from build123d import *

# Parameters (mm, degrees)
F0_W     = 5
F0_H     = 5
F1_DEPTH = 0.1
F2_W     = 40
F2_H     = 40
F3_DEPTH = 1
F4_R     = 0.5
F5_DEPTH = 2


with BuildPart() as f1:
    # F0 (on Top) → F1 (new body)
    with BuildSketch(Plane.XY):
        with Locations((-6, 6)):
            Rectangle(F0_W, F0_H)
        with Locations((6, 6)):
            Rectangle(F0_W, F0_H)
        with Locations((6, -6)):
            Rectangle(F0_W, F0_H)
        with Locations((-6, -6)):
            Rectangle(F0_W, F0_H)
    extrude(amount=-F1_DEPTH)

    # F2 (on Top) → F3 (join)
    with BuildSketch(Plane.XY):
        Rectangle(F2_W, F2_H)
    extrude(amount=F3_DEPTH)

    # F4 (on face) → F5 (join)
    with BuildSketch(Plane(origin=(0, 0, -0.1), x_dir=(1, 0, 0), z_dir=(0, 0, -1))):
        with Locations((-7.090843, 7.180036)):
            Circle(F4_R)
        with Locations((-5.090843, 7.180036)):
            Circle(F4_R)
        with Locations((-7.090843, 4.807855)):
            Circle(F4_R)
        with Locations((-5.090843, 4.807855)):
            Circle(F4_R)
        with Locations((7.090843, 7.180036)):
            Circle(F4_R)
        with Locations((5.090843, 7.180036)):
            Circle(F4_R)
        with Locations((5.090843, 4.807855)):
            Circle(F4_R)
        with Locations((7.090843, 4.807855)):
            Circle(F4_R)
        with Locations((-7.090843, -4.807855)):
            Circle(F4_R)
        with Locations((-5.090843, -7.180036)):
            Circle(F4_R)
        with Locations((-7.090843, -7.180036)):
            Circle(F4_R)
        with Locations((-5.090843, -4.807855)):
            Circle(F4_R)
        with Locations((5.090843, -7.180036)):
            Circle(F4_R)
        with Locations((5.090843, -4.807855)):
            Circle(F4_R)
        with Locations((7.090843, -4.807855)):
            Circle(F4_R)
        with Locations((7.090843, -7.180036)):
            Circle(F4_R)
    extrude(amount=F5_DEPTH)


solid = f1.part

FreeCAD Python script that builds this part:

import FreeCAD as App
import Part
import Sketcher

V = App.Vector
Q = App.Units.Quantity

doc = App.newDocument("Part")
body = doc.addObject("PartDesign::Body", "Body")
body.AllowCompound = True

sketch1 = body.newObject("Sketcher::SketchObject", "Sketch")
sketch1.AttachmentSupport = (doc.getObject("XY_Plane"), [""])
sketch1.MapMode = "FlatFace"
sketch1.addGeometry(Part.LineSegment(V(-8, 8, 0), V(-8, 4, 0)), False)
sketch1.addGeometry(Part.LineSegment(V(-8, 4, 0), V(-4, 4, 0)), False)
sketch1.addGeometry(Part.LineSegment(V(-4, 4, 0), V(-4, 8, 0)), False)
sketch1.addGeometry(Part.LineSegment(V(-4, 8, 0), V(-8, 8, 0)), False)
sketch1.addGeometry(Part.LineSegment(V(4, 8, 0), V(4, 4, 0)), False)
sketch1.addGeometry(Part.LineSegment(V(4, 4, 0), V(8, 4, 0)), False)
sketch1.addGeometry(Part.LineSegment(V(8, 4, 0), V(8, 8, 0)), False)
sketch1.addGeometry(Part.LineSegment(V(8, 8, 0), V(4, 8, 0)), False)
sketch1.addGeometry(Part.LineSegment(V(4, -4, 0), V(4, -8, 0)), False)
sketch1.addGeometry(Part.LineSegment(V(4, -8, 0), V(8, -8, 0)), False)
sketch1.addGeometry(Part.LineSegment(V(8, -8, 0), V(8, -4, 0)), False)
sketch1.addGeometry(Part.LineSegment(V(8, -4, 0), V(4, -4, 0)), False)
sketch1.addGeometry(Part.LineSegment(V(-8, -4, 0), V(-8, -8, 0)), False)
sketch1.addGeometry(Part.LineSegment(V(-8, -8, 0), V(-4, -8, 0)), False)
sketch1.addGeometry(Part.LineSegment(V(-4, -8, 0), V(-4, -4, 0)), False)
sketch1.addGeometry(Part.LineSegment(V(-4, -4, 0), V(-8, -4, 0)), False)
sketch1.addConstraint(Sketcher.Constraint("Coincident", 0, 2, 1, 1))
sketch1.addConstraint(Sketcher.Constraint("Coincident", 1, 2, 2, 1))
sketch1.addConstraint(Sketcher.Constraint("Coincident", 2, 2, 3, 1))
sketch1.addConstraint(Sketcher.Constraint("Coincident", 3, 2, 0, 1))
sketch1.addConstraint(Sketcher.Constraint("Coincident", 4, 2, 5, 1))
sketch1.addConstraint(Sketcher.Constraint("Coincident", 5, 2, 6, 1))
sketch1.addConstraint(Sketcher.Constraint("Coincident", 6, 2, 7, 1))
sketch1.addConstraint(Sketcher.Constraint("Coincident", 7, 2, 4, 1))
sketch1.addConstraint(Sketcher.Constraint("Coincident", 8, 2, 9, 1))
sketch1.addConstraint(Sketcher.Constraint("Coincident", 9, 2, 10, 1))
sketch1.addConstraint(Sketcher.Constraint("Coincident", 10, 2, 11, 1))
sketch1.addConstraint(Sketcher.Constraint("Coincident", 11, 2, 8, 1))
sketch1.addConstraint(Sketcher.Constraint("Coincident", 12, 2, 13, 1))
sketch1.addConstraint(Sketcher.Constraint("Coincident", 13, 2, 14, 1))
sketch1.addConstraint(Sketcher.Constraint("Coincident", 14, 2, 15, 1))
sketch1.addConstraint(Sketcher.Constraint("Coincident", 15, 2, 12, 1))
sketch1.addConstraint(Sketcher.Constraint("Vertical", 0))
sketch1.addConstraint(Sketcher.Constraint("Horizontal", 1))
sketch1.addConstraint(Sketcher.Constraint("Vertical", 2))
sketch1.addConstraint(Sketcher.Constraint("Horizontal", 3))
sketch1.addConstraint(Sketcher.Constraint("Vertical", 4))
sketch1.addConstraint(Sketcher.Constraint("Horizontal", 5))
sketch1.addConstraint(Sketcher.Constraint("Vertical", 6))
sketch1.addConstraint(Sketcher.Constraint("Horizontal", 7))
sketch1.addConstraint(Sketcher.Constraint("Vertical", 8))
sketch1.addConstraint(Sketcher.Constraint("Horizontal", 9))
sketch1.addConstraint(Sketcher.Constraint("Vertical", 10))
sketch1.addConstraint(Sketcher.Constraint("Horizontal", 11))
sketch1.addConstraint(Sketcher.Constraint("Vertical", 12))
sketch1.addConstraint(Sketcher.Constraint("Horizontal", 13))
sketch1.addConstraint(Sketcher.Constraint("Vertical", 14))
sketch1.addConstraint(Sketcher.Constraint("Horizontal", 15))
sketch1.addConstraint(Sketcher.Constraint("Symmetric", 2, 2, 8, 2, -1, 1))
sketch1.addConstraint(Sketcher.Constraint("Symmetric", 0, 2, 10, 2, -1, 1))
sketch1.addConstraint(Sketcher.Constraint("Symmetric", 6, 2, 12, 2, -1, 1))
sketch1.addConstraint(Sketcher.Constraint("Symmetric", 4, 2, 14, 2, -1, 1))
sketch1.addConstraint(Sketcher.Constraint("Symmetric", 1, 2, 4, 2, -2))
sketch1.addConstraint(Sketcher.Constraint("Symmetric", 3, 2, 6, 2, -2))
sketch1.addConstraint(Sketcher.Constraint("Equal", 15, 0))
sketch1.addConstraint(Sketcher.Constraint("DistanceX", 1, 1, 1, 2, Q("5 mm")))
sketch1.addConstraint(Sketcher.Constraint("DistanceX", 1, 2, 4, 2, Q("7 mm")))
sketch1.addConstraint(Sketcher.Constraint("DistanceY", 8, 2, 4, 2, Q("12 mm")))
pad1 = body.newObject("PartDesign::Pad", "Pad")
pad1.Profile = sketch1
pad1.Length = 0.1
pad1.Reversed = True

sketch2 = body.newObject("Sketcher::SketchObject", "Sketch001")
sketch2.AttachmentSupport = (doc.getObject("XY_Plane"), [""])
sketch2.MapMode = "FlatFace"
sketch2.addGeometry(Part.LineSegment(V(-20, 20, 0), V(-20, -20, 0)), False)
sketch2.addGeometry(Part.LineSegment(V(-20, -20, 0), V(20, -20, 0)), False)
sketch2.addGeometry(Part.LineSegment(V(20, -20, 0), V(20, 20, 0)), False)
sketch2.addGeometry(Part.LineSegment(V(20, 20, 0), V(-20, 20, 0)), False)
sketch2.addConstraint(Sketcher.Constraint("Coincident", 0, 2, 1, 1))
sketch2.addConstraint(Sketcher.Constraint("Coincident", 1, 2, 2, 1))
sketch2.addConstraint(Sketcher.Constraint("Coincident", 2, 2, 3, 1))
sketch2.addConstraint(Sketcher.Constraint("Coincident", 3, 2, 0, 1))
sketch2.addConstraint(Sketcher.Constraint("Vertical", 0))
sketch2.addConstraint(Sketcher.Constraint("Horizontal", 1))
sketch2.addConstraint(Sketcher.Constraint("Vertical", 2))
sketch2.addConstraint(Sketcher.Constraint("Horizontal", 3))
sketch2.addConstraint(Sketcher.Constraint("Symmetric", 0, 2, 2, 2, -1, 1))
sketch2.addConstraint(Sketcher.Constraint("Equal", 3, 0))
sketch2.addConstraint(Sketcher.Constraint("DistanceX", 1, 1, 1, 2, Q("40 mm")))
pad2 = body.newObject("PartDesign::Pad", "Pad001")
pad2.Profile = sketch2
pad2.Length = 1

sketch3 = body.newObject("Sketcher::SketchObject", "Sketch002")
sketch3.AttachmentSupport = (doc.getObject("XY_Plane"), [""])
sketch3.MapMode = "FlatFace"
sketch3.AttachmentOffset = App.Placement(V(0, 0, -0.1), App.Rotation())
sketch3.addGeometry(Part.Circle(V(-7.1, -7.2, 0), V(0, 0, 1), 0.5), False)
sketch3.addGeometry(Part.Circle(V(-5.1, -7.2, 0), V(0, 0, 1), 0.5), False)
sketch3.addGeometry(Part.Circle(V(-7.1, -4.8, 0), V(0, 0, 1), 0.5), False)
sketch3.addGeometry(Part.Circle(V(-5.1, -4.8, 0), V(0, 0, 1), 0.5), False)
sketch3.addGeometry(Part.Circle(V(7.1, -7.2, 0), V(0, 0, 1), 0.5), False)
sketch3.addGeometry(Part.Circle(V(5.1, -7.2, 0), V(0, 0, 1), 0.5), False)
sketch3.addGeometry(Part.Circle(V(5.1, -4.8, 0), V(0, 0, 1), 0.5), False)
sketch3.addGeometry(Part.Circle(V(7.1, -4.8, 0), V(0, 0, 1), 0.5), False)
sketch3.addGeometry(Part.Circle(V(-7.1, 4.8, 0), V(0, 0, 1), 0.5), False)
sketch3.addGeometry(Part.Circle(V(-5.1, 7.2, 0), V(0, 0, 1), 0.5), False)
sketch3.addGeometry(Part.Circle(V(-7.1, 7.2, 0), V(0, 0, 1), 0.5), False)
sketch3.addGeometry(Part.Circle(V(-5.1, 4.8, 0), V(0, 0, 1), 0.5), False)
sketch3.addGeometry(Part.Circle(V(5.1, 7.2, 0), V(0, 0, 1), 0.5), False)
sketch3.addGeometry(Part.Circle(V(5.1, 4.8, 0), V(0, 0, 1), 0.5), False)
sketch3.addGeometry(Part.Circle(V(7.1, 4.8, 0), V(0, 0, 1), 0.5), False)
sketch3.addGeometry(Part.Circle(V(7.1, 7.2, 0), V(0, 0, 1), 0.5), False)
sketch3.addConstraint(Sketcher.Constraint("Equal", 0, 1))
sketch3.addConstraint(Sketcher.Constraint("Equal", 1, 2))
sketch3.addConstraint(Sketcher.Constraint("Equal", 2, 3))
sketch3.addConstraint(Sketcher.Constraint("Equal", 3, 4))
sketch3.addConstraint(Sketcher.Constraint("Equal", 4, 5))
sketch3.addConstraint(Sketcher.Constraint("Equal", 5, 6))
sketch3.addConstraint(Sketcher.Constraint("Equal", 6, 7))
sketch3.addConstraint(Sketcher.Constraint("Equal", 7, 8))
sketch3.addConstraint(Sketcher.Constraint("Equal", 8, 9))
sketch3.addConstraint(Sketcher.Constraint("Equal", 9, 10))
sketch3.addConstraint(Sketcher.Constraint("Equal", 10, 11))
sketch3.addConstraint(Sketcher.Constraint("Equal", 11, 12))
sketch3.addConstraint(Sketcher.Constraint("Equal", 12, 13))
sketch3.addConstraint(Sketcher.Constraint("Equal", 13, 14))
sketch3.addConstraint(Sketcher.Constraint("Equal", 14, 15))
sketch3.addConstraint(Sketcher.Constraint("Symmetric", 7, 3, 8, 3, -1, 1))
sketch3.addConstraint(Sketcher.Constraint("Symmetric", 5, 3, 9, 3, -1, 1))
sketch3.addConstraint(Sketcher.Constraint("Symmetric", 4, 3, 10, 3, -1, 1))
sketch3.addConstraint(Sketcher.Constraint("Symmetric", 6, 3, 11, 3, -1, 1))
sketch3.addConstraint(Sketcher.Constraint("Symmetric", 1, 3, 12, 3, -1, 1))
sketch3.addConstraint(Sketcher.Constraint("Symmetric", 3, 3, 13, 3, -1, 1))
sketch3.addConstraint(Sketcher.Constraint("Symmetric", 2, 3, 14, 3, -1, 1))
sketch3.addConstraint(Sketcher.Constraint("Symmetric", 0, 3, 15, 3, -1, 1))
sketch3.addConstraint(Sketcher.Constraint("Symmetric", 0, 3, 4, 3, -2))
sketch3.addConstraint(Sketcher.Constraint("Symmetric", 1, 3, 5, 3, -2))
sketch3.addConstraint(Sketcher.Constraint("Symmetric", 3, 3, 6, 3, -2))
sketch3.addConstraint(Sketcher.Constraint("Symmetric", 2, 3, 7, 3, -2))
sketch3.addConstraint(Sketcher.Constraint("Horizontal", 0, 3, 1, 3))
sketch3.addConstraint(Sketcher.Constraint("Horizontal", 2, 3, 3, 3))
sketch3.addConstraint(Sketcher.Constraint("Vertical", 0, 3, 2, 3))
sketch3.addConstraint(Sketcher.Constraint("Vertical", 1, 3, 3, 3))
sketch3.addConstraint(Sketcher.Constraint("Diameter", 0, Q("1 mm")))
sketch3.addConstraint(Sketcher.Constraint("DistanceX", 0, 3, 1, 3, Q("2 mm")))
sketch3.addConstraint(Sketcher.Constraint("DistanceY", 0, 3, 2, 3, Q("2.372181 mm")))
sketch3.addConstraint(Sketcher.Constraint("DistanceY", 2, 3, 8, 3, Q("9.61571 mm")))
sketch3.addConstraint(Sketcher.Constraint("DistanceX", 0, 3, -1, 1, Q("7.090843 mm")))
pad3 = body.newObject("PartDesign::Pad", "Pad002")
pad3.Profile = sketch3
pad3.Length = 2
pad3.Reversed = True

doc.recompute()
